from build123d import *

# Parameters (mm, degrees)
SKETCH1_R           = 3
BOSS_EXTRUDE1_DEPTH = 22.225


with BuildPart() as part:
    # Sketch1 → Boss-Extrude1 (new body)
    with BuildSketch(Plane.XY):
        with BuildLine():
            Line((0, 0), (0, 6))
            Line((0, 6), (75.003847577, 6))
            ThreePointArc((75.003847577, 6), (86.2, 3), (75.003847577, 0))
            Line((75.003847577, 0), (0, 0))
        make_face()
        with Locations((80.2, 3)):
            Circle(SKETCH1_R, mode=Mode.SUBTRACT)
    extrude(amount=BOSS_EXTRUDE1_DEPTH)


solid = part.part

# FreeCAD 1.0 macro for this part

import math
import FreeCAD as App
import Part
import Sketcher
from FreeCAD import Vector
Q = App.Units.Quantity

doc = App.newDocument("Part")
body = doc.addObject("PartDesign::Body", "Body")

# Sketch on XY plane
sketch1 = body.newObject("Sketcher::SketchObject", "Sketch")
sketch1.AttachmentSupport = (doc.getObject("XY_Plane"), [""])
sketch1.MapMode = "FlatFace"
sketch1.addGeometry([
    Part.LineSegment(Vector(0, 6, 0), Vector(0, 0, 0)),  # 0
    Part.LineSegment(Vector(0, 0, 0), Vector(75.003848, 0, 0)),  # 1
    Part.ArcOfCircle(Part.Circle(Vector(80.2, 3, 0), Vector(0, 0, 1), 6), math.radians(-150), math.radians(150)),  # 2
    Part.LineSegment(Vector(75.003848, 6, 0), Vector(0, 6, 0)),  # 3
    Part.Circle(Vector(80.2, 3, 0), Vector(0, 0, 1), 3),  # 4
], False)
sketch1.addConstraint([
    Sketcher.Constraint("Coincident", 0, 2, 1, 1),
    Sketcher.Constraint("Coincident", 1, 2, 2, 1),
    Sketcher.Constraint("Coincident", 2, 2, 3, 1),
    Sketcher.Constraint("Coincident", 3, 2, 0, 1),
    Sketcher.Constraint("Vertical", 0),
    Sketcher.Constraint("Horizontal", 1),
    Sketcher.Constraint("Horizontal", 3),
    Sketcher.Constraint("Coincident", 0, 2, -1, 1),
    Sketcher.Constraint("Coincident", 4, 3, 2, 3),
    Sketcher.Constraint("Vertical", 1, 2, 2, 2),
    Sketcher.Constraint("Diameter", 4, Q("6 mm")),
    Sketcher.Constraint("Radius", 2, Q("6 mm")),
    Sketcher.Constraint("DistanceY", 0, 2, 0, 1, Q("6 mm")),
    Sketcher.Constraint("DistanceX", -1, 1, 2, 3, Q("80.2 mm")),
])
pad1 = body.newObject("PartDesign::Pad", "Pad")
pad1.Profile = sketch1
pad1.Length = 22.225

doc.recompute()
